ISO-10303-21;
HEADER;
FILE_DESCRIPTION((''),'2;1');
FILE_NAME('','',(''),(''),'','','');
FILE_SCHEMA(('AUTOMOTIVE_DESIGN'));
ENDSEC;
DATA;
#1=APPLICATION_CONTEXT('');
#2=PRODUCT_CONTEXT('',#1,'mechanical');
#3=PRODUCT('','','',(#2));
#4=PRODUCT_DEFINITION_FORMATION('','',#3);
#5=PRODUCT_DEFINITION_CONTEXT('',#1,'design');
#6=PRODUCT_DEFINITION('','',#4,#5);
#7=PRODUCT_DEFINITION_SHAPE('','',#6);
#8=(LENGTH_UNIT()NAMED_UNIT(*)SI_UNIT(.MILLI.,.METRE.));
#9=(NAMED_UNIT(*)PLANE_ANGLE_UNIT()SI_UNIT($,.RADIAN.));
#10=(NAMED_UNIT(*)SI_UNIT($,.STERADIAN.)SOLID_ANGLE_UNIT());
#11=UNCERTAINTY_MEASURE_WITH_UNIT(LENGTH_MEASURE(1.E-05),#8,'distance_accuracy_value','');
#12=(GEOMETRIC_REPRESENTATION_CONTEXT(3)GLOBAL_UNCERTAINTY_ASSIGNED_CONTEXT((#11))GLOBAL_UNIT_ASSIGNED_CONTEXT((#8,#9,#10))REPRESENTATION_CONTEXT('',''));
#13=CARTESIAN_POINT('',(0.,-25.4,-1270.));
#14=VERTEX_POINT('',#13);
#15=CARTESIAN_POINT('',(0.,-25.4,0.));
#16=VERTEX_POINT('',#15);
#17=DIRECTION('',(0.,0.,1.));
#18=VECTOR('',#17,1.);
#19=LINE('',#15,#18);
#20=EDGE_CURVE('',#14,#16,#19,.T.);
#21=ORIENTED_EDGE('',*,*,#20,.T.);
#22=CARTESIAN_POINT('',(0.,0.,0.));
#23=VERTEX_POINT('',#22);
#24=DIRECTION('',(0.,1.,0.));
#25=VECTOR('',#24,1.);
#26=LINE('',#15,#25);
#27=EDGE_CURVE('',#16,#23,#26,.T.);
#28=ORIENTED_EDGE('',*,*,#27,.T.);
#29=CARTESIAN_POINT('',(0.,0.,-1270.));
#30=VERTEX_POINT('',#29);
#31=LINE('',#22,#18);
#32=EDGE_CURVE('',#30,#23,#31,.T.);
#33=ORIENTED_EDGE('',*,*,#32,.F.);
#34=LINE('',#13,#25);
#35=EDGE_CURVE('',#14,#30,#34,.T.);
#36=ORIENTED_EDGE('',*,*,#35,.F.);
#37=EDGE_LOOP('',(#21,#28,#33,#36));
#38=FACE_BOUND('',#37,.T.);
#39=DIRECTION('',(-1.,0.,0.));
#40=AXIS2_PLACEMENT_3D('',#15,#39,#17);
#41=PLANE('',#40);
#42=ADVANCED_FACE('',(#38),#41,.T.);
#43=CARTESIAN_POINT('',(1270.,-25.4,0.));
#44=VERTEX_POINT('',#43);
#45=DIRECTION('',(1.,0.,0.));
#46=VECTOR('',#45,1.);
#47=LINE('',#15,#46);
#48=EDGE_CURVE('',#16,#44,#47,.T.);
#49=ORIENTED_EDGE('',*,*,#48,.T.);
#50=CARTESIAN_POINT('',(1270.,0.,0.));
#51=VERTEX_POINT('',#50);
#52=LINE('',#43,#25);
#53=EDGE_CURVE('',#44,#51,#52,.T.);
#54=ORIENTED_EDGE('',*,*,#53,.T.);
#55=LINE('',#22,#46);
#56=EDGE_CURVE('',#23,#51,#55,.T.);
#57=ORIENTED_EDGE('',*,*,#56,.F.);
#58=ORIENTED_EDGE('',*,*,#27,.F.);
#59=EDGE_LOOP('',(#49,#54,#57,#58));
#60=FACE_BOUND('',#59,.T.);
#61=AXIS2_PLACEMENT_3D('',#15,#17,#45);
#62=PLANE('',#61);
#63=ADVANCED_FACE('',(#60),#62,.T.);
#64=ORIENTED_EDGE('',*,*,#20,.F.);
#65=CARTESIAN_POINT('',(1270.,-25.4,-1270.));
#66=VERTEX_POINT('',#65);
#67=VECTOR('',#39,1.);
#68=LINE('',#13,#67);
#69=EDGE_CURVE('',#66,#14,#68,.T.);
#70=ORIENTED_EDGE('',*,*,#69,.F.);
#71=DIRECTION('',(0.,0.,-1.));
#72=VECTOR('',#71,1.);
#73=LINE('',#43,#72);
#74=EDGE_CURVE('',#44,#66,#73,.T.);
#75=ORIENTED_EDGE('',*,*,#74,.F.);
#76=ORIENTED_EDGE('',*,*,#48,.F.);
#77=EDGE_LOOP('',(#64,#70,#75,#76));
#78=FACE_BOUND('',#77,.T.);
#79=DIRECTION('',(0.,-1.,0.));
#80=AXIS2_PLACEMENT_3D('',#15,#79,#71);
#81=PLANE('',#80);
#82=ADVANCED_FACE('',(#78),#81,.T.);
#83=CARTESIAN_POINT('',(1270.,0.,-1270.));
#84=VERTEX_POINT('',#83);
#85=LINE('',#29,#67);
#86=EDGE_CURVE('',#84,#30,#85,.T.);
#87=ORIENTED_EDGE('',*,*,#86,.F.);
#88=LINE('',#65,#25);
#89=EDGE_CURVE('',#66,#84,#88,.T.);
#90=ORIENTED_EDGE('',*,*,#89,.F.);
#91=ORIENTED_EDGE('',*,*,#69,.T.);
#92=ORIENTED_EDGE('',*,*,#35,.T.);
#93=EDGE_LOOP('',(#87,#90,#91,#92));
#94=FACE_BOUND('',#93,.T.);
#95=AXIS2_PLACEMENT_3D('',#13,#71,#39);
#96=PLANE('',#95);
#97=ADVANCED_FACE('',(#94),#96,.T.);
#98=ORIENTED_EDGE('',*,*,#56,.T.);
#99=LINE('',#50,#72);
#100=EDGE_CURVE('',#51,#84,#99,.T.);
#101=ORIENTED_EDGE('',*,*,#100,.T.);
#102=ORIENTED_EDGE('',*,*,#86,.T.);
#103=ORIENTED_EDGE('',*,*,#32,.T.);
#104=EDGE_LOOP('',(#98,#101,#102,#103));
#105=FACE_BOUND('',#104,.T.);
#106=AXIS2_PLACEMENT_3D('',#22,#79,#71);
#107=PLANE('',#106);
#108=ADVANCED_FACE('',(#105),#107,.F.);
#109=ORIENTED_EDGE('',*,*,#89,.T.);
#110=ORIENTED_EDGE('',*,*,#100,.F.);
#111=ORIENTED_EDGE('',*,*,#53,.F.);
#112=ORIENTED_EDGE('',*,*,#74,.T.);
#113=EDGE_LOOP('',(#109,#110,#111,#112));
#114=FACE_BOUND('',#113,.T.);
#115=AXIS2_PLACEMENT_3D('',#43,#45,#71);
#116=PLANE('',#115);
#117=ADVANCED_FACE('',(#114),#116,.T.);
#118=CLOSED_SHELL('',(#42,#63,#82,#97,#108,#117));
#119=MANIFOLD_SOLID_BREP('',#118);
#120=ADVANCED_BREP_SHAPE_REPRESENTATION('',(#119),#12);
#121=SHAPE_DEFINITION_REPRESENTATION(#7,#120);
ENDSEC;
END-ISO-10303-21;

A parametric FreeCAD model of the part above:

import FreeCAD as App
import Part
import Sketcher
from FreeCAD import Vector
Q = App.Units.Quantity


def add_polygon(sketch, points):
    """Adds a closed chain of lines whose ends are joined by coincident constraints."""
    first, n = sketch.GeometryCount, len(points)
    for a, b in zip(points, points[1:] + points[:1]):
        sketch.addGeometry(Part.LineSegment(App.Vector(*a, 0), App.Vector(*b, 0)), False)
    for i in range(n):
        sketch.addConstraint(Sketcher.Constraint("Coincident", first + i, 2, first + (i + 1) % n, 1))

doc = App.newDocument("Part")
body = doc.addObject("PartDesign::Body", "Body")

# Sketch on XZ plane
sketch1 = body.newObject("Sketcher::SketchObject", "Sketch")
sketch1.AttachmentSupport = (doc.getObject("XZ_Plane"), [""])
sketch1.MapMode = "FlatFace"
add_polygon(sketch1, [(0, -1270), (0, 0), (1270, 0), (1270, -1270)])  # lines 0-3
sketch1.addConstraint([
    Sketcher.Constraint("Vertical", 0),
    Sketcher.Constraint("Horizontal", 1),
    Sketcher.Constraint("Vertical", 2),
    Sketcher.Constraint("Horizontal", 3),
    Sketcher.Constraint("Coincident", 0, 2, -1, 1),
    Sketcher.Constraint("Equal", 3, 0),
    Sketcher.Constraint("DistanceX", 1, 1, 1, 2, Q("50 in")),
])
pad1 = body.newObject("PartDesign::Pad", "Pad")
pad1.Profile = sketch1
pad1.Length = Q("1 in")

doc.recompute()
